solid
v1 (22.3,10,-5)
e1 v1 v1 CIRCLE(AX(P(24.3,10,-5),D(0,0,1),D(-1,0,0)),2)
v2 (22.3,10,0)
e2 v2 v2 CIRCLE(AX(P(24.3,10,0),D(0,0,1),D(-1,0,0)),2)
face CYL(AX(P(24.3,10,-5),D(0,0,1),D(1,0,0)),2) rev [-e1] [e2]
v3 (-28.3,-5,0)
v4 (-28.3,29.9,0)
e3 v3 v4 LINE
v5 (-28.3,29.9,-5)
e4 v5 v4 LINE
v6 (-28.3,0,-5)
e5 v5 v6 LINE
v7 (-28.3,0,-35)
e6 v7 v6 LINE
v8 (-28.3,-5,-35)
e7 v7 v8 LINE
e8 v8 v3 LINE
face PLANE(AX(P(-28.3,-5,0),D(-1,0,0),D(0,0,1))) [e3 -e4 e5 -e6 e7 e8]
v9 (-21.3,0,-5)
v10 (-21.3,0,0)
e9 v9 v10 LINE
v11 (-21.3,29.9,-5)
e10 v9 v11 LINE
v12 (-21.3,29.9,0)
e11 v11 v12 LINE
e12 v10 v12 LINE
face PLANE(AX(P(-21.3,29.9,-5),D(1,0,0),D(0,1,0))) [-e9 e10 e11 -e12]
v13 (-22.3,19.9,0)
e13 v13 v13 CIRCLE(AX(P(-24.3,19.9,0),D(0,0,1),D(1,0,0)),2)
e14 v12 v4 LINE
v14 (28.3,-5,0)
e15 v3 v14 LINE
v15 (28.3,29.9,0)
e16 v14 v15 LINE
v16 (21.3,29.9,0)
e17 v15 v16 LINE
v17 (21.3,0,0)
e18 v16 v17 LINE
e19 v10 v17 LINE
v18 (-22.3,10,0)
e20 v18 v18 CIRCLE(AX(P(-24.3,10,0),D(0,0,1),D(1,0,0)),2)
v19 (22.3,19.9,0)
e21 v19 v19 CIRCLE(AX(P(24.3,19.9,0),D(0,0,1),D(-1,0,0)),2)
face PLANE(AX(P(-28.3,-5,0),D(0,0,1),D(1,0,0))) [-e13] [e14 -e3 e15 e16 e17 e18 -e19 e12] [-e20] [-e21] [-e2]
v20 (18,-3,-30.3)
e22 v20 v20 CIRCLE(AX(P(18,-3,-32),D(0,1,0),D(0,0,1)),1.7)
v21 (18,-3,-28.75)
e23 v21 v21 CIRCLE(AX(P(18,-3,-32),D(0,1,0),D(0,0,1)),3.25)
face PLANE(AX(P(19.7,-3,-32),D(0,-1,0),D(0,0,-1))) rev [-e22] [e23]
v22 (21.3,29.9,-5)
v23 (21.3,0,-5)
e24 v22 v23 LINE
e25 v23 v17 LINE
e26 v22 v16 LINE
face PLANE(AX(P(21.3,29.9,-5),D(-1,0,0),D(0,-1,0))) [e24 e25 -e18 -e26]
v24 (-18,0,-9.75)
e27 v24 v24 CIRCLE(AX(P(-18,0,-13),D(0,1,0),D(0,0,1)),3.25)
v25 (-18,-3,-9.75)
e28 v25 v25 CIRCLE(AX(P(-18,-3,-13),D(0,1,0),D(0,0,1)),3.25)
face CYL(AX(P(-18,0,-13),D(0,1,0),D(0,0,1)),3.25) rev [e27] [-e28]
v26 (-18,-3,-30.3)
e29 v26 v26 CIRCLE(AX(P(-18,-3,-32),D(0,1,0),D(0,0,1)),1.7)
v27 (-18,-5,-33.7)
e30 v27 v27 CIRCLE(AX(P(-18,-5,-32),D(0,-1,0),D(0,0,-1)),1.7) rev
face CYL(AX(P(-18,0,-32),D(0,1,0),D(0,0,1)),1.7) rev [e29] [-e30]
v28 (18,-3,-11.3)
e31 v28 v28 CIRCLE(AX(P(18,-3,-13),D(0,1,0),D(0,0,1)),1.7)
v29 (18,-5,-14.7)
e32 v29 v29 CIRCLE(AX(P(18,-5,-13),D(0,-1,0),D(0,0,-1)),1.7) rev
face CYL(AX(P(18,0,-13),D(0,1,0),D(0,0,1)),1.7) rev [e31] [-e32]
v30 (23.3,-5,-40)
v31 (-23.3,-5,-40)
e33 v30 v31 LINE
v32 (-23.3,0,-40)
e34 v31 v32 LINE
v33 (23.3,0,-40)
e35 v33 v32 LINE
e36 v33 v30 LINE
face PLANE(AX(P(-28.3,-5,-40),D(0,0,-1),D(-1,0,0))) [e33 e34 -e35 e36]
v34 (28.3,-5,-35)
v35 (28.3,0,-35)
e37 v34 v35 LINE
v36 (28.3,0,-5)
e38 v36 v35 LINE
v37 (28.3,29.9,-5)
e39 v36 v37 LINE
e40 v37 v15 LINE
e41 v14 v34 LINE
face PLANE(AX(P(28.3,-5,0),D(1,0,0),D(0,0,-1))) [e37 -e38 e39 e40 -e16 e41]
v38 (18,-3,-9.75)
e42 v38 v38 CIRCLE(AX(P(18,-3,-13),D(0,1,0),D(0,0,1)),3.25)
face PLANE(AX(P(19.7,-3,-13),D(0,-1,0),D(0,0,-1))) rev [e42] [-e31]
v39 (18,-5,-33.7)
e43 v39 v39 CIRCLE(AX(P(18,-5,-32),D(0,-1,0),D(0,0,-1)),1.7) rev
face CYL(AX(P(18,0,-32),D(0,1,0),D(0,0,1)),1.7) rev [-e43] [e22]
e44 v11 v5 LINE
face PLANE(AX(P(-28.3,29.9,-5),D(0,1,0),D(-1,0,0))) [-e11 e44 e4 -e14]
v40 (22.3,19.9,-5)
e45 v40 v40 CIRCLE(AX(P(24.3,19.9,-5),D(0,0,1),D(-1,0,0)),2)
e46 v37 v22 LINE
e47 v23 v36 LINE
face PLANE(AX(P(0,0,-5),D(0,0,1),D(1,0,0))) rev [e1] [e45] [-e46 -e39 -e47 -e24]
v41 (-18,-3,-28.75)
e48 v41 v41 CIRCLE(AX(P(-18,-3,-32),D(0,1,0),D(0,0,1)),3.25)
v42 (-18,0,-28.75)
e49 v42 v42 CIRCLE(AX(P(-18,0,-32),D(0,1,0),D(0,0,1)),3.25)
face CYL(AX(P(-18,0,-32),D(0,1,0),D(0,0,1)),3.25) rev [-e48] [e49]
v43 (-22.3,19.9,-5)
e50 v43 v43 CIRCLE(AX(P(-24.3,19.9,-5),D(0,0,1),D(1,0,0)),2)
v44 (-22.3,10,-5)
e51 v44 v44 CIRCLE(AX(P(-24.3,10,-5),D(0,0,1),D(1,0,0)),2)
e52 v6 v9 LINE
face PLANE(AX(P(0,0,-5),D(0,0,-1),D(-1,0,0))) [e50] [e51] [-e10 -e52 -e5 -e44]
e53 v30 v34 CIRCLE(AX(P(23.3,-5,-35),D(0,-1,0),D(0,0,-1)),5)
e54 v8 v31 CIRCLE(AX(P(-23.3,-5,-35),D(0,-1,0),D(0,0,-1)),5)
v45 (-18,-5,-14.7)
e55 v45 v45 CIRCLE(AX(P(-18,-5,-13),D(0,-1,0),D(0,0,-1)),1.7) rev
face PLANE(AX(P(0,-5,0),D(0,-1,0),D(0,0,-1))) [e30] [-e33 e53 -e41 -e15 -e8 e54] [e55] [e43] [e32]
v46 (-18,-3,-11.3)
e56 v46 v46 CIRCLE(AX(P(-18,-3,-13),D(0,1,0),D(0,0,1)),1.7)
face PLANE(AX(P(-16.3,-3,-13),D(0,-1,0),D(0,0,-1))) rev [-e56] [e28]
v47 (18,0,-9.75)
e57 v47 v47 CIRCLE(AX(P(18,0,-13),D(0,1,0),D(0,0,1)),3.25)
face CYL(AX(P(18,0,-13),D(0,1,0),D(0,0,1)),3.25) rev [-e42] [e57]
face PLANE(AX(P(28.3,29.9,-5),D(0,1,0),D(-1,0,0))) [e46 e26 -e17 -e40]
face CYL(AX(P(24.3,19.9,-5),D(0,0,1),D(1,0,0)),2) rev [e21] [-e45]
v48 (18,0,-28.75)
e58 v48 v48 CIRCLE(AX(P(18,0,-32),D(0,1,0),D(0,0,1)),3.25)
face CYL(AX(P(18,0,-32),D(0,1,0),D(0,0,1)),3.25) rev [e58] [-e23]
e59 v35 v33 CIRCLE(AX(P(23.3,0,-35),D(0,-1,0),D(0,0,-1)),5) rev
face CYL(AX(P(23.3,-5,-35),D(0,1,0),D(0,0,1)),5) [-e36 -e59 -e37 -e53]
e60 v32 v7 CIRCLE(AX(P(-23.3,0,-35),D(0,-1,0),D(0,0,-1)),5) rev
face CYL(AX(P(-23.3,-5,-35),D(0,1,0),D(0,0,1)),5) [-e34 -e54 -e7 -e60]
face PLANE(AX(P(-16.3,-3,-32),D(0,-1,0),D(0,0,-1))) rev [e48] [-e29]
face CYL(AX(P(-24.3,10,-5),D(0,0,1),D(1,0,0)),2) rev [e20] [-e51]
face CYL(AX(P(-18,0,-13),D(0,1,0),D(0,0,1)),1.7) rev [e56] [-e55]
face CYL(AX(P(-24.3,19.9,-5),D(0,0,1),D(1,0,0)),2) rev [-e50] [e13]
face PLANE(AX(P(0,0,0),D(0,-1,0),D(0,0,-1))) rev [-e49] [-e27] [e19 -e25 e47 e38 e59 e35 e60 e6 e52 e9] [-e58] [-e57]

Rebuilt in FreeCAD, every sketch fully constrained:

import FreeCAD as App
import Part
import Sketcher


def edges_at(feature, points):
    """Names of the edges that pass closest to the given points."""
    edges = feature.Shape.Edges
    near = lambda p: min(range(len(edges)), key=lambda i: edges[i].distToShape(Part.Vertex(*p))[0])
    return sorted({f"Edge{near(p) + 1}" for p in points})


def add_polygon(sketch, points):
    """Adds a closed chain of lines whose ends are joined by coincident constraints."""
    first, n = sketch.GeometryCount, len(points)
    for a, b in zip(points, points[1:] + points[:1]):
        sketch.addGeometry(Part.LineSegment(App.Vector(*a, 0), App.Vector(*b, 0)), False)
    for i in range(n):
        sketch.addConstraint(Sketcher.Constraint("Coincident", first + i, 2, first + (i + 1) % n, 1))

doc = App.newDocument("Part")
body = doc.addObject("PartDesign::Body", "Body")

sketch1 = doc.addObject("Sketcher::SketchObject", "Sketch")
body.addObject(sketch1)
sketch1.AttachmentSupport = (doc.XZ_Plane, [""])
sketch1.MapMode = "FlatFace"
add_polygon(sketch1, [(-28, -40), (-28, 0), (28, 0), (28, -40)])
sketch1.addConstraint([
    Sketcher.Constraint("Vertical", 0),
    Sketcher.Constraint("Horizontal", 1),
    Sketcher.Constraint("Vertical", 2),
    Sketcher.Constraint("Horizontal", 3),
    Sketcher.Constraint("Symmetric", 0, 2, 1, 2, -1, 1),
    Sketcher.Constraint("DistanceY", 0, 1, 0, 2, 40.0),
    Sketcher.Constraint("DistanceX", 1, 1, 1, 2, 56.6),
])
pad1 = doc.addObject("PartDesign::Pad", "Pad")
body.addObject(pad1)
pad1.Profile = sketch1
pad1.Length = 5

sketch2 = doc.addObject("Sketcher::SketchObject", "Sketch001")
body.addObject(sketch2)
sketch2.AttachmentSupport = (doc.XY_Plane, [""])
sketch2.MapMode = "FlatFace"
add_polygon(sketch2, [(-28.3, 29.9), (-28.3, 0), (-21.3, 0), (-21.3, 29.9)])
sketch2.addGeometry(Part.Circle(App.Vector(-24.3, 10, 0), App.Vector(0, 0, 1), 2), False)
sketch2.addGeometry(Part.Circle(App.Vector(-24.3, 19.9, 0), App.Vector(0, 0, 1), 2), False)
add_polygon(sketch2, [(21.3, 29.9), (21.3, 0), (28.3, 0), (28.3, 29.9)])
sketch2.addGeometry(Part.Circle(App.Vector(24.3, 10, 0), App.Vector(0, 0, 1), 2), False)
sketch2.addGeometry(Part.Circle(App.Vector(24.3, 19.9, 0), App.Vector(0, 0, 1), 2), False)
sketch2.addConstraint([
    Sketcher.Constraint("Vertical", 0),
    Sketcher.Constraint("Horizontal", 1),
    Sketcher.Constraint("Vertical", 2),
    Sketcher.Constraint("Horizontal", 3),
    Sketcher.Constraint("Vertical", 6),
    Sketcher.Constraint("Horizontal", 7),
    Sketcher.Constraint("Vertical", 8),
    Sketcher.Constraint("Horizontal", 9),
    Sketcher.Constraint("Equal", 4, 5),
    Sketcher.Constraint("Equal", 5, 10),
    Sketcher.Constraint("Equal", 10, 11),
    Sketcher.Constraint("Symmetric", 1, 2, 6, 2, -1, 1),
    Sketcher.Constraint("Symmetric", 4, 3, 10, 3, -2),
    Sketcher.Constraint("Symmetric", 5, 3, 11, 3, -2),
    Sketcher.Constraint("Symmetric", 0, 2, 7, 2, -2),
    Sketcher.Constraint("Horizontal", 3, 2, 8, 2),
    Sketcher.Constraint("Vertical", 4, 3, 5, 3),
    Sketcher.Constraint("Diameter", 4, 4.0),
    Sketcher.Constraint("DistanceX", 1, 1, 1, 2, 7.0),
    Sketcher.Constraint("DistanceY", 0, 2, 0, 1, 29.9),
    Sketcher.Constraint("DistanceY", -1, 1, 4, 3, 10.0),
    Sketcher.Constraint("DistanceX", 0, 2, 4, 3, 4.0),
    Sketcher.Constraint("DistanceY", 5, 3, 2, 2, 10.0),
    Sketcher.Constraint("DistanceX", 4, 3, -1, 1, 24.3),
])
pad2 = doc.addObject("PartDesign::Pad", "Pad001")
body.addObject(pad2)
pad2.Profile = sketch2
pad2.Length = 5
pad2.Reversed = True

sketch3 = doc.addObject("Sketcher::SketchObject", "Sketch002")
body.addObject(sketch3)
sketch3.AttachmentSupport = (doc.XZ_Plane, [""])
sketch3.MapMode = "FlatFace"
sketch3.addGeometry([
    Part.Circle(App.Vector(-18, -32, 0), App.Vector(0, 0, 1), 1.7),
    Part.Circle(App.Vector(18, -13, 0), App.Vector(0, 0, 1), 1.7),
    Part.Circle(App.Vector(-18, -13, 0), App.Vector(0, 0, 1), 1.7),
    Part.Circle(App.Vector(18, -32, 0), App.Vector(0, 0, 1), 1.7),
], False)
sketch3.addConstraint([
    Sketcher.Constraint("Equal", 0, 1),
    Sketcher.Constraint("Equal", 1, 2),
    Sketcher.Constraint("Equal", 2, 3),
    Sketcher.Constraint("Symmetric", 1, 3, 2, 3, -2),
    Sketcher.Constraint("Symmetric", 0, 3, 3, 3, -2),
    Sketcher.Constraint("Vertical", 0, 3, 2, 3),
    Sketcher.Constraint("Diameter", 0, 3.4),
    Sketcher.Constraint("DistanceX", 0, 3, -1, 1, 18.0),
    Sketcher.Constraint("DistanceY", 0, 3, -1, 1, 32.0),
    Sketcher.Constraint("DistanceY", 1, 3, -1, 1, 13.0),
])
doc.recompute()
hole = doc.addObject("PartDesign::Hole", "Hole")
body.addObject(hole)
hole.Profile = sketch3
hole.ThreadType = "None"
hole.Diameter = 3.4
hole.DepthType = "Dimension"
hole.Depth = 5
hole.DrillPoint = "Angled"
hole.DrillPointAngle = 118
hole.HoleCutType = "Counterbore"
hole.HoleCutDiameter = 6.5
hole.HoleCutDepth = 3
hole.Reversed = True
doc.recompute()

fillet = doc.addObject("PartDesign::Fillet", "Fillet")
body.addObject(fillet)
fillet.Base = (hole, edges_at(hole, [(-28.3, -2.5, -40), (28.3, -2.5, -40)]))
fillet.Radius = 5

doc.recompute()
